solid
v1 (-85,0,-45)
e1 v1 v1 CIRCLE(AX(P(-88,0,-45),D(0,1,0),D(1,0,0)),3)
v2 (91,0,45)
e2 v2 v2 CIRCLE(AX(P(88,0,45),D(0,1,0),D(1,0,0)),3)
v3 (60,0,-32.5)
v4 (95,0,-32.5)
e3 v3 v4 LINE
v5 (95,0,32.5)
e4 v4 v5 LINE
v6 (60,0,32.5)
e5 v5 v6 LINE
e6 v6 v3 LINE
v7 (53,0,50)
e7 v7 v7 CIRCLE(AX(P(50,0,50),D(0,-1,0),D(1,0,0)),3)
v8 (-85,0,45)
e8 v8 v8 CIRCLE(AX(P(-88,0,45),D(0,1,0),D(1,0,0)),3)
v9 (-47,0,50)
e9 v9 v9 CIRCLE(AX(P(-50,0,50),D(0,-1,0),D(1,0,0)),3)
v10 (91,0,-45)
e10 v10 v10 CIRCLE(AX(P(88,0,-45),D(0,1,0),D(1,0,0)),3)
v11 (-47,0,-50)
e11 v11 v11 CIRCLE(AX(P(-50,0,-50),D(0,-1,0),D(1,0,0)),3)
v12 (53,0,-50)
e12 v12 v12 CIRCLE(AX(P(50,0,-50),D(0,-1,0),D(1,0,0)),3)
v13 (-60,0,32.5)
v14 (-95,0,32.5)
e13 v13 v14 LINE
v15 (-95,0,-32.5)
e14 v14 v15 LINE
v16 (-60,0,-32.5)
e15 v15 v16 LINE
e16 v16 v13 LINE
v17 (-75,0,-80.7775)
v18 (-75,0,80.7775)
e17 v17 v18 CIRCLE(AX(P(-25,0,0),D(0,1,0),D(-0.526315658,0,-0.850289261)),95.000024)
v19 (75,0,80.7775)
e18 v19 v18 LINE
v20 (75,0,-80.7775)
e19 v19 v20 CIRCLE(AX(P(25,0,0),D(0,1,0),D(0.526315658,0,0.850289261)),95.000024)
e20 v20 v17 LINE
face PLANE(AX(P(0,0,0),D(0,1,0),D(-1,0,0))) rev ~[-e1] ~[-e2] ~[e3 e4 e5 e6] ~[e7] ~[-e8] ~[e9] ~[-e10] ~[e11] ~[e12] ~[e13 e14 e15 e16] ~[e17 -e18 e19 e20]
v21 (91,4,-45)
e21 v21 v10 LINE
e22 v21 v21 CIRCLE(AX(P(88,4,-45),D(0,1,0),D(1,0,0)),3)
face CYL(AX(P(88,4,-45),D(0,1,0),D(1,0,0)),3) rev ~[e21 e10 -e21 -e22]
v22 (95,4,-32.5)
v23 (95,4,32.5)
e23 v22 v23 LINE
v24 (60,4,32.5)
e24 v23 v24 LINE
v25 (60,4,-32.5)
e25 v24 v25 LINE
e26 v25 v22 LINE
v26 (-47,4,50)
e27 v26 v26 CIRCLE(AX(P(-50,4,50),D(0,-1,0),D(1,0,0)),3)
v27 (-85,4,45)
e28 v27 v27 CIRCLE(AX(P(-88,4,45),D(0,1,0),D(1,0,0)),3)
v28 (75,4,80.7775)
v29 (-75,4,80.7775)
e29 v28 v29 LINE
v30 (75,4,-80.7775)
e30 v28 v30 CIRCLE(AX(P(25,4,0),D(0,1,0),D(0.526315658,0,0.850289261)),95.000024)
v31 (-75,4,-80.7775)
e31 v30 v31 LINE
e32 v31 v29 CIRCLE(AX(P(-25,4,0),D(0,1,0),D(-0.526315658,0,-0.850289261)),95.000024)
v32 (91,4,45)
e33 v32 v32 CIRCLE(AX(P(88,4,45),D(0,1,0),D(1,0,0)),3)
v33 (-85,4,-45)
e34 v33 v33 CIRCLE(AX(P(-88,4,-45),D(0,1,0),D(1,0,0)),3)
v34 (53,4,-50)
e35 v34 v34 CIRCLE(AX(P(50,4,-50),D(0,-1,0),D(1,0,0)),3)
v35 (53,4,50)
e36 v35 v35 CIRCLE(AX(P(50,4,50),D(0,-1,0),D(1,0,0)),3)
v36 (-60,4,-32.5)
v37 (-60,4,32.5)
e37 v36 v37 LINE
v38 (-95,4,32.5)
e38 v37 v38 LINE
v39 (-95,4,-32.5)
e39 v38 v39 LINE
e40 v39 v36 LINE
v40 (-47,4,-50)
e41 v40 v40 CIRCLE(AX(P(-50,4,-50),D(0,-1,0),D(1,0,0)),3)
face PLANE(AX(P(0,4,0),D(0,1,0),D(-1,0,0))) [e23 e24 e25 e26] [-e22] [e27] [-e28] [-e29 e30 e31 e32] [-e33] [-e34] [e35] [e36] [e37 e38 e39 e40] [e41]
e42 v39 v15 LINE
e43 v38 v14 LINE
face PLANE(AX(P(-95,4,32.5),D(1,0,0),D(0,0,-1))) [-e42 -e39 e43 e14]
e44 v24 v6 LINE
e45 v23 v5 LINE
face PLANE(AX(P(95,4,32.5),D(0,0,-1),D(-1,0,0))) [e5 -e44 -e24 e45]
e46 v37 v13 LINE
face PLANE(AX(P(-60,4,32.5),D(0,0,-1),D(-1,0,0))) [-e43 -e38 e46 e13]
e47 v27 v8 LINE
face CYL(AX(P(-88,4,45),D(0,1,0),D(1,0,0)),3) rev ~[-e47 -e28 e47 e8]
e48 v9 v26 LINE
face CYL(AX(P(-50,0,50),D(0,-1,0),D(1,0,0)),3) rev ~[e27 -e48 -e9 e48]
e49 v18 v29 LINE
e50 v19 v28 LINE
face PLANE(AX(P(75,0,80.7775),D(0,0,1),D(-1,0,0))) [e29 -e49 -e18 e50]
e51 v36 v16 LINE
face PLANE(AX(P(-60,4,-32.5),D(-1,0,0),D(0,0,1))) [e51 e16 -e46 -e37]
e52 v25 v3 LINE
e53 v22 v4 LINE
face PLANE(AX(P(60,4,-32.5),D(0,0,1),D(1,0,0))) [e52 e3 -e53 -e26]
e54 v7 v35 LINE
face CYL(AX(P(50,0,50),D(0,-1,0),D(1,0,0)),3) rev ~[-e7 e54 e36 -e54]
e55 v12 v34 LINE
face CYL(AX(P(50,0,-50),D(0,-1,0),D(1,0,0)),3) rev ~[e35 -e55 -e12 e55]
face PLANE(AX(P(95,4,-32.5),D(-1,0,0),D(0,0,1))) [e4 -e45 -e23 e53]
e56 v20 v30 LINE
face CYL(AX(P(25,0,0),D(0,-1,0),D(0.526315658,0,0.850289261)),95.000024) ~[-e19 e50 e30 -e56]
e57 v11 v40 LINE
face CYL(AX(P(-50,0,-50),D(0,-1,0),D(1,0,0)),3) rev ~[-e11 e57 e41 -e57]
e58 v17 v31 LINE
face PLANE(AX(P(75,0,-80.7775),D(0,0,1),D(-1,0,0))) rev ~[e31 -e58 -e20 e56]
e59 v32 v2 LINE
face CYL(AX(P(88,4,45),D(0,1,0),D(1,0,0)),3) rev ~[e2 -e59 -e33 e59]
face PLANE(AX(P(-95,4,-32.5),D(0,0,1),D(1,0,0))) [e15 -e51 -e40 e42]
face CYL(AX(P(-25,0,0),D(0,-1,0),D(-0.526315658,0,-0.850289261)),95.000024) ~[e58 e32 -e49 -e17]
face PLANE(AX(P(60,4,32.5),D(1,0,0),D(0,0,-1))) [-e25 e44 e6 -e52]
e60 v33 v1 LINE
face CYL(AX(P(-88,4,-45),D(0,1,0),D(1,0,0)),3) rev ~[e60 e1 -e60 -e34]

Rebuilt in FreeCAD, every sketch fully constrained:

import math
import FreeCAD as App
import Part
import Sketcher

doc = App.newDocument("Part")
body = doc.addObject("PartDesign::Body", "Body")

# Sketch on XZ plane
sketch1 = doc.addObject("Sketcher::SketchObject", "Sketch")
body.addObject(sketch1)
sketch1.AttachmentSupport = (doc.XZ_Plane, [""])
sketch1.MapMode = "FlatFace"
sketch1.addGeometry([
    Part.LineSegment(App.Vector(-75, 80.7775, 0), App.Vector(75, 80.7775, 0)),
    Part.ArcOfCircle(Part.Circle(App.Vector(25, 0, 0), App.Vector(0, 0, 1), 95.000024), math.radians(-58.243145), math.radians(58.243145)),
    Part.LineSegment(App.Vector(75, -80.7775, 0), App.Vector(-75, -80.7775, 0)),
    Part.ArcOfCircle(Part.Circle(App.Vector(-25, 0, 0), App.Vector(0, 0, 1), 95.000024), math.radians(121.756855), math.radians(238.243145)),
], False)
sketch1.addConstraint([
    Sketcher.Constraint("Coincident", 0, 2, 1, 2),
    Sketcher.Constraint("Coincident", 1, 1, 2, 1),
    Sketcher.Constraint("Coincident", 2, 2, 3, 2),
    Sketcher.Constraint("Coincident", 3, 1, 0, 1),
    Sketcher.Constraint("Horizontal", 0),
    Sketcher.Constraint("Horizontal", 2),
    Sketcher.Constraint("Equal", 1, 3),
    Sketcher.Constraint("Symmetric", 1, 3, 3, 3, -1, 1),
    Sketcher.Constraint("Symmetric", 0, 2, 1, 1, -1),
    Sketcher.Constraint("Radius", 1, 95.0),
    Sketcher.Constraint("DistanceX", 0, 1, 0, 2, 150.0),
    Sketcher.Constraint("DistanceX", 3, 3, 1, 3, 50.0),
])
pad1 = doc.addObject("PartDesign::Pad", "Pad")
body.addObject(pad1)
pad1.Profile = sketch1
pad1.Length = 4
pad1.Reversed = True

# Sketch on XZ plane
sketch2 = doc.addObject("Sketcher::SketchObject", "Sketch001")
body.addObject(sketch2)
sketch2.AttachmentSupport = (doc.XZ_Plane, [""])
sketch2.MapMode = "FlatFace"
sketch2.AttachmentOffset = App.Placement(App.Vector(0, 0, -4), App.Rotation())
sketch2.addGeometry([
    Part.LineSegment(App.Vector(-60, -32.5, 0), App.Vector(-95, -32.5, 0)),  # 0
    Part.LineSegment(App.Vector(-95, -32.5, 0), App.Vector(-95, 32.5, 0)),  # 1
    Part.LineSegment(App.Vector(-95, 32.5, 0), App.Vector(-60, 32.5, 0)),  # 2
    Part.LineSegment(App.Vector(-60, 32.5, 0), App.Vector(-60, -32.5, 0)),  # 3
    Part.LineSegment(App.Vector(95, -32.5, 0), App.Vector(60, -32.5, 0)),  # 4
    Part.LineSegment(App.Vector(60, -32.5, 0), App.Vector(60, 32.5, 0)),  # 5
    Part.LineSegment(App.Vector(60, 32.5, 0), App.Vector(95, 32.5, 0)),  # 6
    Part.LineSegment(App.Vector(95, 32.5, 0), App.Vector(95, -32.5, 0)),  # 7
], False)
sketch2.addConstraint([
    Sketcher.Constraint("Coincident", 0, 2, 1, 1),
    Sketcher.Constraint("Coincident", 1, 2, 2, 1),
    Sketcher.Constraint("Coincident", 2, 2, 3, 1),
    Sketcher.Constraint("Coincident", 3, 2, 0, 1),
    Sketcher.Constraint("Coincident", 4, 2, 5, 1),
    Sketcher.Constraint("Coincident", 5, 2, 6, 1),
    Sketcher.Constraint("Coincident", 6, 2, 7, 1),
    Sketcher.Constraint("Coincident", 7, 2, 4, 1),
    Sketcher.Constraint("Horizontal", 0),
    Sketcher.Constraint("Vertical", 1),
    Sketcher.Constraint("Horizontal", 2),
    Sketcher.Constraint("Vertical", 3),
    Sketcher.Constraint("Horizontal", 4),
    Sketcher.Constraint("Vertical", 5),
    Sketcher.Constraint("Horizontal", 6),
    Sketcher.Constraint("Vertical", 7),
    Sketcher.Constraint("Symmetric", 2, 2, 4, 2, -1, 1),
    Sketcher.Constraint("Symmetric", 0, 2, 6, 2, -1, 1),
    Sketcher.Constraint("Horizontal", 3, 2, 4, 2),
    Sketcher.Constraint("DistanceX", 0, 2, 0, 1, 35.0),
    Sketcher.Constraint("DistanceY", 1, 1, 1, 2, 65.0),
    Sketcher.Constraint("DistanceX", 2, 2, -1, 1, 60.0),
])
pocket1 = doc.addObject("PartDesign::Pocket", "Pocket")
body.addObject(pocket1)
pocket1.Profile = sketch2
pocket1.Type = "ThroughAll"
pocket1.Reversed = True

# Sketch on XZ plane
sketch3 = doc.addObject("Sketcher::SketchObject", "Sketch002")
body.addObject(sketch3)
sketch3.AttachmentSupport = (doc.XZ_Plane, [""])
sketch3.MapMode = "FlatFace"
sketch3.AttachmentOffset = App.Placement(App.Vector(0, 0, -4), App.Rotation())
sketch3.addGeometry([
    Part.Circle(App.Vector(-88, -45, 0), App.Vector(0, 0, 1), 3),
    Part.Circle(App.Vector(-88, 45, 0), App.Vector(0, 0, 1), 3),
    Part.Circle(App.Vector(88, -45, 0), App.Vector(0, 0, 1), 3),
    Part.Circle(App.Vector(88, 45, 0), App.Vector(0, 0, 1), 3),
], False)
sketch3.addConstraint([
    Sketcher.Constraint("Equal", 0, 1),
    Sketcher.Constraint("Equal", 1, 2),
    Sketcher.Constraint("Equal", 2, 3),
    Sketcher.Constraint("Symmetric", 1, 3, 2, 3, -1, 1),
    Sketcher.Constraint("Symmetric", 0, 3, 3, 3, -1, 1),
    Sketcher.Constraint("Symmetric", 0, 3, 2, 3, -2),
    Sketcher.Constraint("Diameter", 0, 6.0),
    Sketcher.Constraint("DistanceX", 0, 3, -1, 1, 88.0),
    Sketcher.Constraint("DistanceY", 0, 3, 1, 3, 90.0),
])
pocket2 = doc.addObject("PartDesign::Pocket", "Pocket001")
body.addObject(pocket2)
pocket2.Profile = sketch3
pocket2.Type = "ThroughAll"
pocket2.Reversed = True

# Sketch on XZ plane
sketch4 = doc.addObject("Sketcher::SketchObject", "Sketch003")
body.addObject(sketch4)
sketch4.AttachmentSupport = (doc.XZ_Plane, [""])
sketch4.MapMode = "FlatFace"
sketch4.addGeometry([
    Part.Circle(App.Vector(-50, 50, 0), App.Vector(0, 0, 1), 3),
    Part.Circle(App.Vector(50, 50, 0), App.Vector(0, 0, 1), 3),
    Part.Circle(App.Vector(50, -50, 0), App.Vector(0, 0, 1), 3),
    Part.Circle(App.Vector(-50, -50, 0), App.Vector(0, 0, 1), 3),
], False)
sketch4.addConstraint([
    Sketcher.Constraint("Equal", 0, 1),
    Sketcher.Constraint("Equal", 1, 2),
    Sketcher.Constraint("Equal", 2, 3),
    Sketcher.Constraint("Symmetric", 0, 3, 2, 3, -1, 1),
    Sketcher.Constraint("Symmetric", 1, 3, 3, 3, -1, 1),
    Sketcher.Constraint("Symmetric", 0, 3, 1, 3, -2),
    Sketcher.Constraint("Diameter", 0, 6.0),
    Sketcher.Constraint("DistanceX", 0, 3, -1, 1, 50.0),
    Sketcher.Constraint("DistanceY", -1, 1, 0, 3, 50.0),
])
pocket3 = doc.addObject("PartDesign::Pocket", "Pocket002")
body.addObject(pocket3)
pocket3.Profile = sketch4
pocket3.Type = "ThroughAll"

doc.recompute()
